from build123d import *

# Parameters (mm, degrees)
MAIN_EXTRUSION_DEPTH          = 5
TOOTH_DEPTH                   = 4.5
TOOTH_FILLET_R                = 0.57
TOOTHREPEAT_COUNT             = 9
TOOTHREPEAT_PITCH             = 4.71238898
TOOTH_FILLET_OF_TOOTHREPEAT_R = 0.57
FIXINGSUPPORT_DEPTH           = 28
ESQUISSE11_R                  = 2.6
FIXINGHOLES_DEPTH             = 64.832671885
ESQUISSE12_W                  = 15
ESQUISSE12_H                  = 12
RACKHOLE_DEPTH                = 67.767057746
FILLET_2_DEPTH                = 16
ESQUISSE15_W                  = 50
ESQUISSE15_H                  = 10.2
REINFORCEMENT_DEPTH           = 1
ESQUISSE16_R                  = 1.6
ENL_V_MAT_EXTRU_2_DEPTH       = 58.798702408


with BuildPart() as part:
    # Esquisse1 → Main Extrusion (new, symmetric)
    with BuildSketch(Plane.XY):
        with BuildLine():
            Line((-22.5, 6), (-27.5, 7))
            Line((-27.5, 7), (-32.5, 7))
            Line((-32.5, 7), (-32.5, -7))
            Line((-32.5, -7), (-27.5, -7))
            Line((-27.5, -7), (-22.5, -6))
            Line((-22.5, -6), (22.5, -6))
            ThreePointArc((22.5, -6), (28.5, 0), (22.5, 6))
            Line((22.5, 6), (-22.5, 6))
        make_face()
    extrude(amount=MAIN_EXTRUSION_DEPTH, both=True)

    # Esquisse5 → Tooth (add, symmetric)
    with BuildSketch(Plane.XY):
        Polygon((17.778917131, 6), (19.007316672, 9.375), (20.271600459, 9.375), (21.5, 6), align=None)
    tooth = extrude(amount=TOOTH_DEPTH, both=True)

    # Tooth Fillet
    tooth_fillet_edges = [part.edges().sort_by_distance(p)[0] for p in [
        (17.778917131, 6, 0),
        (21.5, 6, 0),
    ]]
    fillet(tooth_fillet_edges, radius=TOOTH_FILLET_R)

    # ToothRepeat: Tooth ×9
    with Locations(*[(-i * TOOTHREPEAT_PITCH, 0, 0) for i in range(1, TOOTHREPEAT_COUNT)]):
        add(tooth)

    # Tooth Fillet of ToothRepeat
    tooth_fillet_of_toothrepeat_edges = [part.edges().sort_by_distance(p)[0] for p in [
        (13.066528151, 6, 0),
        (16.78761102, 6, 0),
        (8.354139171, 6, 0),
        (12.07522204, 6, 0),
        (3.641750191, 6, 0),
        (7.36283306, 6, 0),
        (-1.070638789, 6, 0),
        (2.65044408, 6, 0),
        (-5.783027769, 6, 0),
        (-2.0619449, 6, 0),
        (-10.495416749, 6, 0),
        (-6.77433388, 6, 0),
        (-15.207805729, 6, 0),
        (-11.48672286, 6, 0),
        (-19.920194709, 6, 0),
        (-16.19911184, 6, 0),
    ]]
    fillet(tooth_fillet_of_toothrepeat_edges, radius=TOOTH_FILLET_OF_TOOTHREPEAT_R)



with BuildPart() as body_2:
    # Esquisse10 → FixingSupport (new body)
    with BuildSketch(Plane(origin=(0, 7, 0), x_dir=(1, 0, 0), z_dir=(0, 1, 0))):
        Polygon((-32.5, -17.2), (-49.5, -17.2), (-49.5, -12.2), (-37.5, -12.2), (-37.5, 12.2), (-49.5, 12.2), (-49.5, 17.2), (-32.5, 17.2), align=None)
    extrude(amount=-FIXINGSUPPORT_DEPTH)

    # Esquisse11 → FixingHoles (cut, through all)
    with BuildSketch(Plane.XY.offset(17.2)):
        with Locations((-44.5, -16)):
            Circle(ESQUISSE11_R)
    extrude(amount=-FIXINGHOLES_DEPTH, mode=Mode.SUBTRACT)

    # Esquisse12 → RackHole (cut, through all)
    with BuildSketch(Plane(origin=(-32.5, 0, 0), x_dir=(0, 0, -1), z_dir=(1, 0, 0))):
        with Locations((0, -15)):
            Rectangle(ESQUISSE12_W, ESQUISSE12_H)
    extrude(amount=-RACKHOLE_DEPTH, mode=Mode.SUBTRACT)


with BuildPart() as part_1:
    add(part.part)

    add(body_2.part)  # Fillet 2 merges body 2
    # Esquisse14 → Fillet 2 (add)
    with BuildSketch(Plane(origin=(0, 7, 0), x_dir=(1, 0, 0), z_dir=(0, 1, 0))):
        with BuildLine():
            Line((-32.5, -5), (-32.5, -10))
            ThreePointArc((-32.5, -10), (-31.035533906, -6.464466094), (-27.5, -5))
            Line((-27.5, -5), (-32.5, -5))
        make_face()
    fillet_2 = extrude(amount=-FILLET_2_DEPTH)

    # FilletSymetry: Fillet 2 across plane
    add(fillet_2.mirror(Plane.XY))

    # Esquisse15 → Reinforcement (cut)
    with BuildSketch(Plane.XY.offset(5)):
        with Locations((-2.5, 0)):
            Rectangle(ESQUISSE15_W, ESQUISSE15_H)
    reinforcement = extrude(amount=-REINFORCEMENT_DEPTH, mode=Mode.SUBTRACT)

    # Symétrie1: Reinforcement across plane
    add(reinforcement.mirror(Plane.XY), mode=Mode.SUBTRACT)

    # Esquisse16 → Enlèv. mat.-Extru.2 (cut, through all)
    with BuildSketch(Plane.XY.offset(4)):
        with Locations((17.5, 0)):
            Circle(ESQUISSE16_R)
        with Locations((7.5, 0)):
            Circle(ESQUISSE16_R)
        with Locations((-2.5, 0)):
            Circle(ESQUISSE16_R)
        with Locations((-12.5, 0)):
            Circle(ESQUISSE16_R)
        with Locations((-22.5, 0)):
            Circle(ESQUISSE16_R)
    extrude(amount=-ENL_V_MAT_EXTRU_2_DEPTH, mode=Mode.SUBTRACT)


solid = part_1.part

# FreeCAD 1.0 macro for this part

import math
import FreeCAD as App
import Part
import Sketcher
from FreeCAD import Vector
Q = App.Units.Quantity


def edges_at(feature, points):
    """Names of the edges that pass closest to the given points."""
    edges = feature.Shape.Edges
    near = lambda p: min(range(len(edges)), key=lambda i: edges[i].distToShape(Part.Vertex(*p))[0])
    return sorted({f"Edge{near(p) + 1}" for p in points})

doc = App.newDocument("Part")
params = doc.addObject("Spreadsheet::Sheet", "Params")
for row, (alias, value) in enumerate([
    ("sketch1_radius", "6 mm"),
    ("sketch1_width", "5 mm"),
    ("sketch1_width2", "45 mm"),
    ("sketch1_height", "14 mm"),
    ("pad1_length", "10 mm"),
    ("pad2_length", "9 mm"),
    ("fillet_radius", "0.57 mm"),
    ("linearpattern_pitch", "4.712389 mm"),
    ("fillet2_radius", "0.57 mm"),
    ("sketch3_width", "17 mm"),
    ("sketch3_width2", "12 mm"),
    ("sketch3_height", "5 mm"),
    ("sketch3_height2", "34.4 mm"),
    ("pad3_length", "28 mm"),
    ("sketch4_diameter", "5.2 mm"),
    ("sketch5_width", "12 mm"),
    ("sketch5_height", "15 mm"),
    ("sketch6_radius", "5 mm"),
    ("pad4_length", "16 mm"),
    ("sketch7_width", "50 mm"),
    ("sketch7_height", "10.2 mm"),
    ("pocket3_length", "1 mm"),
    ("sketch8_diameter", "3.2 mm"),
], start=1):
    params.set(f"A{row}", alias)
    params.set(f"B{row}", "=" + value)
    params.setAlias(f"B{row}", alias)

body = doc.addObject("PartDesign::Body", "Body")

# Sketch on XY plane
sketch1 = body.newObject("Sketcher::SketchObject", "Sketch")
sketch1.AttachmentSupport = (doc.getObject("XY_Plane"), [""])
sketch1.MapMode = "FlatFace"
sketch1.addGeometry([
    Part.LineSegment(Vector(-22.5, 6, 0), Vector(-27.5, 7, 0)),  # 0
    Part.LineSegment(Vector(-27.5, 7, 0), Vector(-32.5, 7, 0)),  # 1
    Part.LineSegment(Vector(-32.5, 7, 0), Vector(-32.5, -7, 0)),  # 2
    Part.LineSegment(Vector(-32.5, -7, 0), Vector(-27.5, -7, 0)),  # 3
    Part.LineSegment(Vector(-27.5, -7, 0), Vector(-22.5, -6, 0)),  # 4
    Part.LineSegment(Vector(-22.5, -6, 0), Vector(22.5, -6, 0)),  # 5
    Part.ArcOfCircle(Part.Circle(Vector(22.5, 0, 0), Vector(0, 0, 1), 6), math.radians(-90), math.radians(90)),  # 6
    Part.LineSegment(Vector(22.5, 6, 0), Vector(-22.5, 6, 0)),  # 7
], False)
sketch1.addConstraint([
    Sketcher.Constraint("Coincident", 0, 2, 1, 1),
    Sketcher.Constraint("Coincident", 1, 2, 2, 1),
    Sketcher.Constraint("Coincident", 2, 2, 3, 1),
    Sketcher.Constraint("Coincident", 3, 2, 4, 1),
    Sketcher.Constraint("Coincident", 4, 2, 5, 1),
    Sketcher.Constraint("Tangent", 5, 2, 6, 1),
    Sketcher.Constraint("Tangent", 6, 2, 7, 1),
    Sketcher.Constraint("Coincident", 7, 2, 0, 1),
    Sketcher.Constraint("Horizontal", 1),
    Sketcher.Constraint("Vertical", 2),
    Sketcher.Constraint("Horizontal", 3),
    Sketcher.Constraint("Horizontal", 5),
    Sketcher.Constraint("Horizontal", 7),
    Sketcher.Constraint("Symmetric", 4, 2, 6, 2, -1, 1),
    Sketcher.Constraint("Symmetric", 0, 2, 3, 2, -1),
    Sketcher.Constraint("Vertical", 4, 2, 7, 2),
    Sketcher.Constraint("Radius", 6, 6.0),
    Sketcher.Constraint("DistanceX", 1, 2, 1, 1, 5.0),
    Sketcher.Constraint("DistanceX", 5, 1, 5, 2, 45.0),
    Sketcher.Constraint("DistanceY", 2, 2, 2, 1, 14.0),
    Sketcher.Constraint("DistanceX", 0, 2, 6, 3, 50.0),
])
sketch1.setExpression("Constraints[16]", "Params.sketch1_radius")
sketch1.setExpression("Constraints[17]", "Params.sketch1_width")
sketch1.setExpression("Constraints[18]", "Params.sketch1_width2")
sketch1.setExpression("Constraints[19]", "Params.sketch1_height")
pad1 = body.newObject("PartDesign::Pad", "Pad")
pad1.Profile = sketch1
pad1.setExpression("Length", "Params.pad1_length")
pad1.Midplane = True

# Sketch on XY plane
sketch2 = body.newObject("Sketcher::SketchObject", "Sketch001")
sketch2.AttachmentSupport = (doc.getObject("XY_Plane"), [""])
sketch2.MapMode = "FlatFace"
sketch2.addGeometry([
    Part.LineSegment(Vector(19.007317, 9.375, 0), Vector(17.778917, 6, 0)),
    Part.LineSegment(Vector(17.778917, 6, 0), Vector(21.5, 6, 0)),
    Part.LineSegment(Vector(21.5, 6, 0), Vector(20.2716, 9.375, 0)),
    Part.LineSegment(Vector(20.2716, 9.375, 0), Vector(19.007317, 9.375, 0)),
], False)
sketch2.addConstraint([
    Sketcher.Constraint("Coincident", 0, 2, 1, 1),
    Sketcher.Constraint("Coincident", 1, 2, 2, 1),
    Sketcher.Constraint("Coincident", 2, 2, 3, 1),
    Sketcher.Constraint("Coincident", 3, 2, 0, 1),
    Sketcher.Constraint("Horizontal", 1),
    Sketcher.Constraint("Horizontal", 3),
    Sketcher.Constraint("Equal", 0, 2),
    Sketcher.Constraint("Angle", 0, Q("-110 deg")),
    Sketcher.Constraint("DistanceY", -1, 1, 0, 2, 6.0),
    Sketcher.Constraint("DistanceX", -1, 1, 1, 2, 21.5),
    Sketcher.Constraint("DistanceY", -1, 1, 2, 2, 9.375),
    Sketcher.Constraint("DistanceX", 1, 1, 1, 2, 3.721083),
])
pad2 = body.newObject("PartDesign::Pad", "Pad001")
pad2.Profile = sketch2
pad2.setExpression("Length", "Params.pad2_length")
pad2.Midplane = True
doc.recompute()

fillet = body.newObject("PartDesign::Fillet", "Fillet")
fillet.Base = (pad2, edges_at(pad2, [(17.779, 6, 0), (21.5, 6, 0)]))
fillet.setExpression("Radius", "Params.fillet_radius")
doc.recompute()

linearpattern = body.newObject("PartDesign::LinearPattern", "LinearPattern")
linearpattern.Originals = [pad2]
linearpattern.Direction = (doc.getObject("X_Axis"), [""])
linearpattern.Mode = "offset"
linearpattern.setExpression("Offset", "Params.linearpattern_pitch")
linearpattern.Occurrences = 9
linearpattern.Reversed = True
body.Tip = linearpattern
doc.recompute()

fillet2 = body.newObject("PartDesign::Fillet", "Fillet001")
fillet2.Base = (linearpattern, edges_at(linearpattern, [
    (13.067, 6, 0),
    (16.788, 6, 0),
    (8.354, 6, 0),
    (12.075, 6, 0),
    (3.642, 6, 0),
    (7.363, 6, 0),
    (-1.071, 6, 0),
    (2.65, 6, 0),
    (-5.783, 6, 0),
    (-2.062, 6, 0),
    (-10.495, 6, 0),
    (-6.774, 6, 0),
    (-15.208, 6, 0),
    (-11.487, 6, 0),
    (-19.92, 6, 0),
    (-16.199, 6, 0),
]))
fillet2.setExpression("Radius", "Params.fillet2_radius")
body2 = doc.addObject("PartDesign::Body", "Body001")

# Sketch on XZ plane
sketch3 = body2.newObject("Sketcher::SketchObject", "Sketch002")
sketch3.AttachmentSupport = (doc.getObject("XZ_Plane001"), [""])
sketch3.MapMode = "FlatFace"
sketch3.AttachmentOffset = App.Placement(Vector(0, 0, -7), App.Rotation())
sketch3.addGeometry([
    Part.LineSegment(Vector(-49.5, 17.2, 0), Vector(-32.5, 17.2, 0)),  # 0
    Part.LineSegment(Vector(-32.5, 17.2, 0), Vector(-32.5, -17.2, 0)),  # 1
    Part.LineSegment(Vector(-32.5, -17.2, 0), Vector(-49.5, -17.2, 0)),  # 2
    Part.LineSegment(Vector(-49.5, -17.2, 0), Vector(-49.5, -12.2, 0)),  # 3
    Part.LineSegment(Vector(-49.5, -12.2, 0), Vector(-37.5, -12.2, 0)),  # 4
    Part.LineSegment(Vector(-37.5, -12.2, 0), Vector(-37.5, 12.2, 0)),  # 5
    Part.LineSegment(Vector(-37.5, 12.2, 0), Vector(-49.5, 12.2, 0)),  # 6
    Part.LineSegment(Vector(-49.5, 12.2, 0), Vector(-49.5, 17.2, 0)),  # 7
], False)
sketch3.addConstraint([
    Sketcher.Constraint("Coincident", 0, 2, 1, 1),
    Sketcher.Constraint("Coincident", 1, 2, 2, 1),
    Sketcher.Constraint("Coincident", 2, 2, 3, 1),
    Sketcher.Constraint("Coincident", 3, 2, 4, 1),
    Sketcher.Constraint("Coincident", 4, 2, 5, 1),
    Sketcher.Constraint("Coincident", 5, 2, 6, 1),
    Sketcher.Constraint("Coincident", 6, 2, 7, 1),
    Sketcher.Constraint("Coincident", 7, 2, 0, 1),
    Sketcher.Constraint("Horizontal", 0),
    Sketcher.Constraint("Vertical", 1),
    Sketcher.Constraint("Horizontal", 2),
    Sketcher.Constraint("Vertical", 3),
    Sketcher.Constraint("Horizontal", 4),
    Sketcher.Constraint("Vertical", 5),
    Sketcher.Constraint("Horizontal", 6),
    Sketcher.Constraint("Vertical", 7),
    Sketcher.Constraint("Symmetric", 3, 2, 6, 2, -1),
    Sketcher.Constraint("Equal", 3, 7),
    Sketcher.Constraint("DistanceX", 0, 1, 0, 2, 17.0),
    Sketcher.Constraint("DistanceX", 4, 1, 4, 2, 12.0),
    Sketcher.Constraint("DistanceY", 3, 1, 3, 2, 5.0),
    Sketcher.Constraint("DistanceY", 1, 2, 1, 1, 34.4),
    Sketcher.Constraint("DistanceX", 0, 2, -1, 1, 32.5),
])
sketch3.setExpression("Constraints[18]", "Params.sketch3_width")
sketch3.setExpression("Constraints[19]", "Params.sketch3_width2")
sketch3.setExpression("Constraints[20]", "Params.sketch3_height")
sketch3.setExpression("Constraints[21]", "Params.sketch3_height2")
pad3 = body2.newObject("PartDesign::Pad", "Pad002")
pad3.Profile = sketch3
pad3.setExpression("Length", "Params.pad3_length")

# Sketch on XY plane
sketch4 = body2.newObject("Sketcher::SketchObject", "Sketch003")
sketch4.AttachmentSupport = (doc.getObject("XY_Plane001"), [""])
sketch4.MapMode = "FlatFace"
sketch4.AttachmentOffset = App.Placement(Vector(0, 0, 17.2), App.Rotation())
sketch4.addGeometry(Part.Circle(Vector(-44.5, -16, 0), Vector(0, 0, 1), 2.6), False)
sketch4.addConstraint([
    Sketcher.Constraint("Diameter", 0, 5.2),
    Sketcher.Constraint("DistanceY", 0, 3, -1, 1, 16.0),
    Sketcher.Constraint("DistanceX", 0, 3, -1, 1, 44.5),
])
sketch4.setExpression("Constraints[0]", "Params.sketch4_diameter")
pocket1 = body2.newObject("PartDesign::Pocket", "Pocket")
pocket1.Profile = sketch4
pocket1.Type = "ThroughAll"

# Sketch on YZ plane
sketch5 = body2.newObject("Sketcher::SketchObject", "Sketch004")
sketch5.AttachmentSupport = (doc.getObject("YZ_Plane001"), [""])
sketch5.MapMode = "FlatFace"
sketch5.AttachmentOffset = App.Placement(Vector(0, 0, -32.5), App.Rotation())
sketch5.addGeometry([
    Part.LineSegment(Vector(-9, 7.5, 0), Vector(-21, 7.5, 0)),
    Part.LineSegment(Vector(-21, 7.5, 0), Vector(-21, -7.5, 0)),
    Part.LineSegment(Vector(-21, -7.5, 0), Vector(-9, -7.5, 0)),
    Part.LineSegment(Vector(-9, -7.5, 0), Vector(-9, 7.5, 0)),
], False)
sketch5.addConstraint([
    Sketcher.Constraint("Coincident", 0, 2, 1, 1),
    Sketcher.Constraint("Coincident", 1, 2, 2, 1),
    Sketcher.Constraint("Coincident", 2, 2, 3, 1),
    Sketcher.Constraint("Coincident", 3, 2, 0, 1),
    Sketcher.Constraint("Horizontal", 0),
    Sketcher.Constraint("Vertical", 1),
    Sketcher.Constraint("Horizontal", 2),
    Sketcher.Constraint("Vertical", 3),
    Sketcher.Constraint("DistanceX", 0, 2, 0, 1, 12.0),
    Sketcher.Constraint("DistanceY", 1, 2, 1, 1, 15.0),
    Sketcher.Constraint("DistanceX", 0, 2, -1, 1, 21.0),
    Sketcher.Constraint("DistanceY", -1, 1, 0, 2, 7.5),
])
sketch5.setExpression("Constraints[8]", "Params.sketch5_width")
sketch5.setExpression("Constraints[9]", "Params.sketch5_height")
pocket2 = body2.newObject("PartDesign::Pocket", "Pocket001")
pocket2.Profile = sketch5
pocket2.Type = "ThroughAll"
doc.recompute()

boolean = body.newObject("PartDesign::Boolean", "Boolean")
boolean.Type = "Fuse"
boolean.addObjects([body2])

# Sketch on XZ plane
sketch6 = body.newObject("Sketcher::SketchObject", "Sketch005")
sketch6.AttachmentSupport = (doc.getObject("XZ_Plane"), [""])
sketch6.MapMode = "FlatFace"
sketch6.AttachmentOffset = App.Placement(Vector(0, 0, -7), App.Rotation())
sketch6.addGeometry([
    Part.LineSegment(Vector(-32.5, 5, 0), Vector(-32.5, 10, 0)),
    Part.ArcOfCircle(Part.Circle(Vector(-27.5, 10, 0), Vector(0, 0, 1), 5), math.radians(180), math.radians(270)),
    Part.LineSegment(Vector(-27.5, 5, 0), Vector(-32.5, 5, 0)),
], False)
sketch6.addConstraint([
    Sketcher.Constraint("Tangent", 0, 2, 1, 1),
    Sketcher.Constraint("Tangent", 1, 2, 2, 1),
    Sketcher.Constraint("Coincident", 2, 2, 0, 1),
    Sketcher.Constraint("Vertical", 0),
    Sketcher.Constraint("Horizontal", 2),
    Sketcher.Constraint("Radius", 1, 5.0),
    Sketcher.Constraint("DistanceY", -1, 1, 1, 3, 10.0),
    Sketcher.Constraint("DistanceX", 1, 3, -1, 1, 27.5),
])
sketch6.setExpression("Constraints[5]", "Params.sketch6_radius")
pad4 = body.newObject("PartDesign::Pad", "Pad003")
pad4.Profile = sketch6
pad4.setExpression("Length", "Params.pad4_length")
doc.recompute()

mirrored = body.newObject("PartDesign::Mirrored", "Mirrored")
mirrored.Originals = [pad4]
mirrored.MirrorPlane = (doc.getObject("XY_Plane"), [""])
body.Tip = mirrored

# Sketch on XY plane
sketch7 = body.newObject("Sketcher::SketchObject", "Sketch006")
sketch7.AttachmentSupport = (doc.getObject("XY_Plane"), [""])
sketch7.MapMode = "FlatFace"
sketch7.AttachmentOffset = App.Placement(Vector(0, 0, 5), App.Rotation())
sketch7.addGeometry([
    Part.LineSegment(Vector(-27.5, 5.1, 0), Vector(-27.5, -5.1, 0)),
    Part.LineSegment(Vector(-27.5, -5.1, 0), Vector(22.5, -5.1, 0)),
    Part.LineSegment(Vector(22.5, -5.1, 0), Vector(22.5, 5.1, 0)),
    Part.LineSegment(Vector(22.5, 5.1, 0), Vector(-27.5, 5.1, 0)),
], False)
sketch7.addConstraint([
    Sketcher.Constraint("Coincident", 0, 2, 1, 1),
    Sketcher.Constraint("Coincident", 1, 2, 2, 1),
    Sketcher.Constraint("Coincident", 2, 2, 3, 1),
    Sketcher.Constraint("Coincident", 3, 2, 0, 1),
    Sketcher.Constraint("Vertical", 0),
    Sketcher.Constraint("Horizontal", 1),
    Sketcher.Constraint("Vertical", 2),
    Sketcher.Constraint("Horizontal", 3),
    Sketcher.Constraint("DistanceX", 1, 1, 1, 2, 50.0),
    Sketcher.Constraint("DistanceY", 0, 2, 0, 1, 10.2),
    Sketcher.Constraint("DistanceX", 0, 2, -1, 1, 27.5),
    Sketcher.Constraint("DistanceY", 0, 2, -1, 1, 5.1),
])
sketch7.setExpression("Constraints[8]", "Params.sketch7_width")
sketch7.setExpression("Constraints[9]", "Params.sketch7_height")
pocket3 = body.newObject("PartDesign::Pocket", "Pocket002")
pocket3.Profile = sketch7
pocket3.setExpression("Length", "Params.pocket3_length")
doc.recompute()

mirrored2 = body.newObject("PartDesign::Mirrored", "Mirrored001")
mirrored2.Originals = [pocket3]
mirrored2.MirrorPlane = (doc.getObject("XY_Plane"), [""])
body.Tip = mirrored2

# Sketch on XY plane
sketch8 = body.newObject("Sketcher::SketchObject", "Sketch007")
sketch8.AttachmentSupport = (doc.getObject("XY_Plane"), [""])
sketch8.MapMode = "FlatFace"
sketch8.AttachmentOffset = App.Placement(Vector(0, 0, 4), App.Rotation())
sketch8.addGeometry([
    Part.Circle(Vector(17.5, 0, 0), Vector(0, 0, 1), 1.6),  # 0
    Part.Circle(Vector(7.5, 0, 0), Vector(0, 0, 1), 1.6),  # 1
    Part.Circle(Vector(-2.5, 0, 0), Vector(0, 0, 1), 1.6),  # 2
    Part.Circle(Vector(-12.5, 0, 0), Vector(0, 0, 1), 1.6),  # 3
    Part.Circle(Vector(-22.5, 0, 0), Vector(0, 0, 1), 1.6),  # 4
], False)
sketch8.addConstraint([
    Sketcher.Constraint("Equal", 0, 1),
    Sketcher.Constraint("Equal", 1, 2),
    Sketcher.Constraint("Equal", 2, 3),
    Sketcher.Constraint("Equal", 3, 4),
    Sketcher.Constraint("PointOnObject", 0, 3, -1),
    Sketcher.Constraint("PointOnObject", 1, 3, -1),
    Sketcher.Constraint("PointOnObject", 2, 3, -1),
    Sketcher.Constraint("PointOnObject", 3, 3, -1),
    Sketcher.Constraint("PointOnObject", 4, 3, -1),
    Sketcher.Constraint("Diameter", 0, 3.2),
    Sketcher.Constraint("DistanceX", 1, 3, 0, 3, 10.0),
    Sketcher.Constraint("DistanceX", 2, 3, 1, 3, 10.0),
    Sketcher.Constraint("DistanceX", 3, 3, 2, 3, 10.0),
    Sketcher.Constraint("DistanceX", 4, 3, 3, 3, 10.0),
    Sketcher.Constraint("DistanceX", -1, 1, 0, 3, 17.5),
])
sketch8.setExpression("Constraints[9]", "Params.sketch8_diameter")
pocket4 = body.newObject("PartDesign::Pocket", "Pocket003")
pocket4.Profile = sketch8
pocket4.Type = "ThroughAll"

doc.recompute()
